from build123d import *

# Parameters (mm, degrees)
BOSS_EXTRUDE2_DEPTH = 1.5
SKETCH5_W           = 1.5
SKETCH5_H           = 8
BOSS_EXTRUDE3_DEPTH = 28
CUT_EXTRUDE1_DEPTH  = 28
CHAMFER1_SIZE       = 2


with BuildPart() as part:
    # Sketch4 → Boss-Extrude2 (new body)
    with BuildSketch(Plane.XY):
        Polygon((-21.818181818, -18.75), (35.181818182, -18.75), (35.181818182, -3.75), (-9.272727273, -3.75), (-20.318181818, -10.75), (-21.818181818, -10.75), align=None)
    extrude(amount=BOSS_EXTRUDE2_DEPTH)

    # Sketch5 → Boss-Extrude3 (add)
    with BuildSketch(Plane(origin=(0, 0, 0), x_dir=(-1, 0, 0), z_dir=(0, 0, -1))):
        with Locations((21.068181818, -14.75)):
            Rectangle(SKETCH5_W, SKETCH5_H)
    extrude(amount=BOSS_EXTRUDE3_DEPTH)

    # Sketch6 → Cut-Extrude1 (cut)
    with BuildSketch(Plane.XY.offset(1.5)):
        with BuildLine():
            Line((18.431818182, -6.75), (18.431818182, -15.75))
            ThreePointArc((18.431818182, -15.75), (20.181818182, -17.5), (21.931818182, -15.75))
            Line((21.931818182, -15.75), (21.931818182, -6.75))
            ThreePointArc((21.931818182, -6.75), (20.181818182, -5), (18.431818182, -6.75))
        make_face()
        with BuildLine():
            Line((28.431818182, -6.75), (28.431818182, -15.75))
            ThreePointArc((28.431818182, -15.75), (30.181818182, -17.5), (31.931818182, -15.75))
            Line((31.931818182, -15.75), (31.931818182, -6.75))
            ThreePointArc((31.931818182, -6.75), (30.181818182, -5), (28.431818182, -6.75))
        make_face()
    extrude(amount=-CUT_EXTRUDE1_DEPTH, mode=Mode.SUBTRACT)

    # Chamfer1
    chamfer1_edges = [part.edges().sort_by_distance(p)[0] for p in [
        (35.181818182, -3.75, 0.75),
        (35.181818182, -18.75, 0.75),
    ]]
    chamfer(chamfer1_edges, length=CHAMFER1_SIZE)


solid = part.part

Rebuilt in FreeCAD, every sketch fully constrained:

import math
import FreeCAD as App
import Part
import Sketcher

V = App.Vector
Q = App.Units.Quantity


def edges_at(feature, points):
    """Names of the edges that pass closest to the given points."""
    edges = feature.Shape.Edges
    near = lambda p: min(range(len(edges)), key=lambda i: edges[i].distToShape(Part.Vertex(*p))[0])
    return sorted({f"Edge{near(p) + 1}" for p in points})

doc = App.newDocument("Part")
body = doc.addObject("PartDesign::Body", "Body")

# Sketch on XY plane
sketch1 = body.newObject("Sketcher::SketchObject", "Sketch")
sketch1.AttachmentSupport = (doc.getObject("XY_Plane"), [""])
sketch1.MapMode = "FlatFace"
sketch1.addGeometry(Part.LineSegment(V(-21.8, -18.8, 0), V(35.2, -18.8, 0)), False)
sketch1.addGeometry(Part.LineSegment(V(35.2, -18.8, 0), V(35.2, -3.8, 0)), False)
sketch1.addGeometry(Part.LineSegment(V(35.2, -3.8, 0), V(-9.3, -3.8, 0)), False)
sketch1.addGeometry(Part.LineSegment(V(-9.3, -3.8, 0), V(-20.3, -10.8, 0)), False)
sketch1.addGeometry(Part.LineSegment(V(-20.3, -10.8, 0), V(-21.8, -10.8, 0)), False)
sketch1.addGeometry(Part.LineSegment(V(-21.8, -10.8, 0), V(-21.8, -18.8, 0)), False)
sketch1.addConstraint(Sketcher.Constraint("Coincident", 0, 2, 1, 1))
sketch1.addConstraint(Sketcher.Constraint("Coincident", 1, 2, 2, 1))
sketch1.addConstraint(Sketcher.Constraint("Coincident", 2, 2, 3, 1))
sketch1.addConstraint(Sketcher.Constraint("Coincident", 3, 2, 4, 1))
sketch1.addConstraint(Sketcher.Constraint("Coincident", 4, 2, 5, 1))
sketch1.addConstraint(Sketcher.Constraint("Coincident", 5, 2, 0, 1))
sketch1.addConstraint(Sketcher.Constraint("Horizontal", 0))
sketch1.addConstraint(Sketcher.Constraint("Vertical", 1))
sketch1.addConstraint(Sketcher.Constraint("Horizontal", 2))
sketch1.addConstraint(Sketcher.Constraint("Horizontal", 4))
sketch1.addConstraint(Sketcher.Constraint("Vertical", 5))
sketch1.addConstraint(Sketcher.Constraint("DistanceX", 0, 1, 0, 2, Q("57 mm")))
sketch1.addConstraint(Sketcher.Constraint("DistanceY", 1, 1, 1, 2, Q("15 mm")))
sketch1.addConstraint(Sketcher.Constraint("DistanceY", 5, 2, 5, 1, Q("8 mm")))
sketch1.addConstraint(Sketcher.Constraint("DistanceX", 4, 2, 4, 1, Q("1.5 mm")))
sketch1.addConstraint(Sketcher.Constraint("DistanceY", 0, 2, -1, 1, Q("18.75 mm")))
sketch1.addConstraint(Sketcher.Constraint("DistanceX", 2, 2, 2, 1, Q("44.454545 mm")))
sketch1.addConstraint(Sketcher.Constraint("DistanceX", -1, 1, 0, 2, Q("35.181818 mm")))
pad1 = body.newObject("PartDesign::Pad", "Pad")
pad1.Profile = sketch1
pad1.Length = 1.5

# Sketch on XY plane
sketch2 = body.newObject("Sketcher::SketchObject", "Sketch001")
sketch2.AttachmentSupport = (doc.getObject("XY_Plane"), [""])
sketch2.MapMode = "FlatFace"
sketch2.addGeometry(Part.LineSegment(V(-20.3, -10.8, 0), V(-20.3, -18.8, 0)), False)
sketch2.addGeometry(Part.LineSegment(V(-20.3, -18.8, 0), V(-21.8, -18.8, 0)), False)
sketch2.addGeometry(Part.LineSegment(V(-21.8, -18.8, 0), V(-21.8, -10.8, 0)), False)
sketch2.addGeometry(Part.LineSegment(V(-21.8, -10.8, 0), V(-20.3, -10.8, 0)), False)
sketch2.addConstraint(Sketcher.Constraint("Coincident", 0, 2, 1, 1))
sketch2.addConstraint(Sketcher.Constraint("Coincident", 1, 2, 2, 1))
sketch2.addConstraint(Sketcher.Constraint("Coincident", 2, 2, 3, 1))
sketch2.addConstraint(Sketcher.Constraint("Coincident", 3, 2, 0, 1))
sketch2.addConstraint(Sketcher.Constraint("Vertical", 0))
sketch2.addConstraint(Sketcher.Constraint("Horizontal", 1))
sketch2.addConstraint(Sketcher.Constraint("Vertical", 2))
sketch2.addConstraint(Sketcher.Constraint("Horizontal", 3))
sketch2.addConstraint(Sketcher.Constraint("DistanceY", 0, 2, 0, 1, Q("8 mm")))
sketch2.addConstraint(Sketcher.Constraint("DistanceX", 1, 2, 1, 1, Q("1.5 mm")))
sketch2.addConstraint(Sketcher.Constraint("DistanceY", 0, 2, -1, 1, Q("18.75 mm")))
sketch2.addConstraint(Sketcher.Constraint("DistanceX", 0, 2, -1, 1, Q("20.318182 mm")))
pad2 = body.newObject("PartDesign::Pad", "Pad001")
pad2.Profile = sketch2
pad2.Length = 28
pad2.Reversed = True

# Sketch on XY plane
sketch3 = body.newObject("Sketcher::SketchObject", "Sketch002")
sketch3.AttachmentSupport = (doc.getObject("XY_Plane"), [""])
sketch3.MapMode = "FlatFace"
sketch3.AttachmentOffset = App.Placement(V(0, 0, 1.5), App.Rotation())
sketch3.addGeometry(Part.LineSegment(V(18.4, -6.8, 0), V(18.4, -15.8, 0)), False)
sketch3.addGeometry(Part.ArcOfCircle(Part.Circle(V(20.2, -15.8, 0), V(0, 0, 1), 1.8), math.radians(180), math.radians(360)), False)
sketch3.addGeometry(Part.LineSegment(V(21.9, -15.8, 0), V(21.9, -6.8, 0)), False)
sketch3.addGeometry(Part.ArcOfCircle(Part.Circle(V(20.2, -6.8, 0), V(0, 0, 1), 1.8), math.radians(0), math.radians(180)), False)
sketch3.addGeometry(Part.LineSegment(V(28.4, -6.8, 0), V(28.4, -15.8, 0)), False)
sketch3.addGeometry(Part.ArcOfCircle(Part.Circle(V(30.2, -15.8, 0), V(0, 0, 1), 1.8), math.radians(180), math.radians(360)), False)
sketch3.addGeometry(Part.LineSegment(V(31.9, -15.8, 0), V(31.9, -6.8, 0)), False)
sketch3.addGeometry(Part.ArcOfCircle(Part.Circle(V(30.2, -6.8, 0), V(0, 0, 1), 1.8), math.radians(0), math.radians(180)), False)
sketch3.addConstraint(Sketcher.Constraint("Tangent", 0, 2, 1, 1))
sketch3.addConstraint(Sketcher.Constraint("Tangent", 1, 2, 2, 1))
sketch3.addConstraint(Sketcher.Constraint("Tangent", 2, 2, 3, 1))
sketch3.addConstraint(Sketcher.Constraint("Tangent", 3, 2, 0, 1))
sketch3.addConstraint(Sketcher.Constraint("Tangent", 4, 2, 5, 1))
sketch3.addConstraint(Sketcher.Constraint("Tangent", 5, 2, 6, 1))
sketch3.addConstraint(Sketcher.Constraint("Tangent", 6, 2, 7, 1))
sketch3.addConstraint(Sketcher.Constraint("Tangent", 7, 2, 4, 1))
sketch3.addConstraint(Sketcher.Constraint("Vertical", 0))
sketch3.addConstraint(Sketcher.Constraint("Vertical", 2))
sketch3.addConstraint(Sketcher.Constraint("Vertical", 4))
sketch3.addConstraint(Sketcher.Constraint("Vertical", 6))
sketch3.addConstraint(Sketcher.Constraint("Equal", 3, 5))
sketch3.addConstraint(Sketcher.Constraint("Horizontal", 1, 3, 5, 3))
sketch3.addConstraint(Sketcher.Constraint("Horizontal", 3, 3, 7, 3))
sketch3.addConstraint(Sketcher.Constraint("DistanceY", 0, 2, 0, 1, Q("9 mm")))
sketch3.addConstraint(Sketcher.Constraint("Radius", 1, Q("1.75 mm")))
sketch3.addConstraint(Sketcher.Constraint("DistanceX", 1, 3, 5, 3, Q("10 mm")))
sketch3.addConstraint(Sketcher.Constraint("DistanceY", 1, 3, -1, 1, Q("15.75 mm")))
sketch3.addConstraint(Sketcher.Constraint("DistanceX", -1, 1, 1, 3, Q("20.181818 mm")))
pocket1 = body.newObject("PartDesign::Pocket", "Pocket")
pocket1.Profile = sketch3
pocket1.Length = 28
doc.recompute()

chamfer = body.newObject("PartDesign::Chamfer", "Chamfer")
chamfer.Base = (pocket1, edges_at(pocket1, [(35.182, -3.75, 0.75), (35.182, -18.75, 0.75)]))
chamfer.Size = 2

doc.recompute()
